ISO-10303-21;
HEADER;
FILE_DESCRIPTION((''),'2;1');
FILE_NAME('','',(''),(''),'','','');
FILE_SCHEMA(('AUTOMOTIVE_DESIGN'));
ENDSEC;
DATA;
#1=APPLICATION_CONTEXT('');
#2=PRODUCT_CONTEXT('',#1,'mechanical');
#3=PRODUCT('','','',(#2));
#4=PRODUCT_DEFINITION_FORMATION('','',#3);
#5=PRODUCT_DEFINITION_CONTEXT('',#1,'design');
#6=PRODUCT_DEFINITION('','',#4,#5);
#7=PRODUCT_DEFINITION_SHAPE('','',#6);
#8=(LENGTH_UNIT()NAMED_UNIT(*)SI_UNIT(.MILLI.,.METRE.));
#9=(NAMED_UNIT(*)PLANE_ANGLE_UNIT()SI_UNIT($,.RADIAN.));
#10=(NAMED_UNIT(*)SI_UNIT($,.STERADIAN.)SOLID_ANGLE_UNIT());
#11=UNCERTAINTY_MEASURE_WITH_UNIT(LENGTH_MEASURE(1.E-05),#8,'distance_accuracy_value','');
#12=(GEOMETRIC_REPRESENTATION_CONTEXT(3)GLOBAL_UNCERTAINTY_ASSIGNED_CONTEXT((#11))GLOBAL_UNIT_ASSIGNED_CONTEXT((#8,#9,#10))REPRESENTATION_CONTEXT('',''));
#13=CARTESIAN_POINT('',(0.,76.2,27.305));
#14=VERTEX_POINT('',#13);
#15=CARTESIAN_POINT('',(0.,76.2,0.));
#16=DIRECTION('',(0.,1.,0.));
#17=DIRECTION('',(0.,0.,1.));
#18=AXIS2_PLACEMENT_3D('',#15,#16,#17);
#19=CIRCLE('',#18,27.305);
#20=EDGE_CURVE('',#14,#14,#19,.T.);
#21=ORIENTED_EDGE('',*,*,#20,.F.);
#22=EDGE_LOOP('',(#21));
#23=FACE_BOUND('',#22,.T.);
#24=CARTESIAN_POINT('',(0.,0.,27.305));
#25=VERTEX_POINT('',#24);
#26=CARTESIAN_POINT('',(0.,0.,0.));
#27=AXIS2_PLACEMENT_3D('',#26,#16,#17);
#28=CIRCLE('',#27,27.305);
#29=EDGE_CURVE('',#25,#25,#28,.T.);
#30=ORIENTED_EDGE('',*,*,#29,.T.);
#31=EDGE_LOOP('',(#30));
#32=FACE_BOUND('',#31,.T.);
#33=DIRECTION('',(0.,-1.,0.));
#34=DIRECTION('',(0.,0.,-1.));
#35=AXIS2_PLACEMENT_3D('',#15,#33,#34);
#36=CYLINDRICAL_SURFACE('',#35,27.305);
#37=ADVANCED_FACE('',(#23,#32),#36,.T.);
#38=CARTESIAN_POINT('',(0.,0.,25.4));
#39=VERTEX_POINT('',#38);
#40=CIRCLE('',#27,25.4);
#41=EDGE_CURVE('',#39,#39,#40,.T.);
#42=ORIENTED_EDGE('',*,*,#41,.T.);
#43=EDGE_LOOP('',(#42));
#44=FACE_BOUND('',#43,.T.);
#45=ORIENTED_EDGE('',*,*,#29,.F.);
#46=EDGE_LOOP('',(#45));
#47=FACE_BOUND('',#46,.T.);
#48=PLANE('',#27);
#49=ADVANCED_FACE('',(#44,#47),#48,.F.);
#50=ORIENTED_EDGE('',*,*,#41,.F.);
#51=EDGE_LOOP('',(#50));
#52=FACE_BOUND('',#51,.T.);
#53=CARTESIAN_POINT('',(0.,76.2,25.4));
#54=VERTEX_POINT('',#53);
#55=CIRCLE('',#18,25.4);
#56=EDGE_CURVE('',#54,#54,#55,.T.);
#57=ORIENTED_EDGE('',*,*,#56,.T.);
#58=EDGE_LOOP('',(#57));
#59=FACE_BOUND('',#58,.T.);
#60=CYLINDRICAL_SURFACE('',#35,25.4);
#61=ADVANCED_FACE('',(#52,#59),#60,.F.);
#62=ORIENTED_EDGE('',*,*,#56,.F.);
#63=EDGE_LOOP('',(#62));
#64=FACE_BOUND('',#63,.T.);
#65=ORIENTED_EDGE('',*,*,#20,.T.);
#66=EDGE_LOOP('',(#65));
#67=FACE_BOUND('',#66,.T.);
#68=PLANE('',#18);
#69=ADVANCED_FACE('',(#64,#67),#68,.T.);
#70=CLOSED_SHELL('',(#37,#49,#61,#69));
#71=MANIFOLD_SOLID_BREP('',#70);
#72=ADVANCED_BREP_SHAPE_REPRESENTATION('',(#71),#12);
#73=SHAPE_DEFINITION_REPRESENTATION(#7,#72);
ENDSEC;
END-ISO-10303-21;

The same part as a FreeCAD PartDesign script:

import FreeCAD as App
import Part
import Sketcher
from FreeCAD import Vector
Q = App.Units.Quantity

doc = App.newDocument("Part")
body = doc.addObject("PartDesign::Body", "Body")

# Sketch on XZ plane
sketch1 = body.newObject("Sketcher::SketchObject", "Sketch")
sketch1.AttachmentSupport = (doc.getObject("XZ_Plane"), [""])
sketch1.MapMode = "FlatFace"
sketch1.addGeometry(Part.Circle(Vector(0, 0, 0), Vector(0, 0, 1), 27), False)
sketch1.addGeometry(Part.Circle(Vector(0, 0, 0), Vector(0, 0, 1), 25), False)
sketch1.addConstraint(Sketcher.Constraint("Coincident", 0, 3, -1, 1))
sketch1.addConstraint(Sketcher.Constraint("Coincident", 1, 3, -1, 1))
sketch1.addConstraint(Sketcher.Constraint("Diameter", 1, Q("2 in")))
sketch1.addConstraint(Sketcher.Constraint("Diameter", 0, Q("2.15 in")))
pad1 = body.newObject("PartDesign::Pad", "Pad")
pad1.Profile = sketch1
pad1.Length = Q("3 in")
pad1.Reversed = True

doc.recompute()
